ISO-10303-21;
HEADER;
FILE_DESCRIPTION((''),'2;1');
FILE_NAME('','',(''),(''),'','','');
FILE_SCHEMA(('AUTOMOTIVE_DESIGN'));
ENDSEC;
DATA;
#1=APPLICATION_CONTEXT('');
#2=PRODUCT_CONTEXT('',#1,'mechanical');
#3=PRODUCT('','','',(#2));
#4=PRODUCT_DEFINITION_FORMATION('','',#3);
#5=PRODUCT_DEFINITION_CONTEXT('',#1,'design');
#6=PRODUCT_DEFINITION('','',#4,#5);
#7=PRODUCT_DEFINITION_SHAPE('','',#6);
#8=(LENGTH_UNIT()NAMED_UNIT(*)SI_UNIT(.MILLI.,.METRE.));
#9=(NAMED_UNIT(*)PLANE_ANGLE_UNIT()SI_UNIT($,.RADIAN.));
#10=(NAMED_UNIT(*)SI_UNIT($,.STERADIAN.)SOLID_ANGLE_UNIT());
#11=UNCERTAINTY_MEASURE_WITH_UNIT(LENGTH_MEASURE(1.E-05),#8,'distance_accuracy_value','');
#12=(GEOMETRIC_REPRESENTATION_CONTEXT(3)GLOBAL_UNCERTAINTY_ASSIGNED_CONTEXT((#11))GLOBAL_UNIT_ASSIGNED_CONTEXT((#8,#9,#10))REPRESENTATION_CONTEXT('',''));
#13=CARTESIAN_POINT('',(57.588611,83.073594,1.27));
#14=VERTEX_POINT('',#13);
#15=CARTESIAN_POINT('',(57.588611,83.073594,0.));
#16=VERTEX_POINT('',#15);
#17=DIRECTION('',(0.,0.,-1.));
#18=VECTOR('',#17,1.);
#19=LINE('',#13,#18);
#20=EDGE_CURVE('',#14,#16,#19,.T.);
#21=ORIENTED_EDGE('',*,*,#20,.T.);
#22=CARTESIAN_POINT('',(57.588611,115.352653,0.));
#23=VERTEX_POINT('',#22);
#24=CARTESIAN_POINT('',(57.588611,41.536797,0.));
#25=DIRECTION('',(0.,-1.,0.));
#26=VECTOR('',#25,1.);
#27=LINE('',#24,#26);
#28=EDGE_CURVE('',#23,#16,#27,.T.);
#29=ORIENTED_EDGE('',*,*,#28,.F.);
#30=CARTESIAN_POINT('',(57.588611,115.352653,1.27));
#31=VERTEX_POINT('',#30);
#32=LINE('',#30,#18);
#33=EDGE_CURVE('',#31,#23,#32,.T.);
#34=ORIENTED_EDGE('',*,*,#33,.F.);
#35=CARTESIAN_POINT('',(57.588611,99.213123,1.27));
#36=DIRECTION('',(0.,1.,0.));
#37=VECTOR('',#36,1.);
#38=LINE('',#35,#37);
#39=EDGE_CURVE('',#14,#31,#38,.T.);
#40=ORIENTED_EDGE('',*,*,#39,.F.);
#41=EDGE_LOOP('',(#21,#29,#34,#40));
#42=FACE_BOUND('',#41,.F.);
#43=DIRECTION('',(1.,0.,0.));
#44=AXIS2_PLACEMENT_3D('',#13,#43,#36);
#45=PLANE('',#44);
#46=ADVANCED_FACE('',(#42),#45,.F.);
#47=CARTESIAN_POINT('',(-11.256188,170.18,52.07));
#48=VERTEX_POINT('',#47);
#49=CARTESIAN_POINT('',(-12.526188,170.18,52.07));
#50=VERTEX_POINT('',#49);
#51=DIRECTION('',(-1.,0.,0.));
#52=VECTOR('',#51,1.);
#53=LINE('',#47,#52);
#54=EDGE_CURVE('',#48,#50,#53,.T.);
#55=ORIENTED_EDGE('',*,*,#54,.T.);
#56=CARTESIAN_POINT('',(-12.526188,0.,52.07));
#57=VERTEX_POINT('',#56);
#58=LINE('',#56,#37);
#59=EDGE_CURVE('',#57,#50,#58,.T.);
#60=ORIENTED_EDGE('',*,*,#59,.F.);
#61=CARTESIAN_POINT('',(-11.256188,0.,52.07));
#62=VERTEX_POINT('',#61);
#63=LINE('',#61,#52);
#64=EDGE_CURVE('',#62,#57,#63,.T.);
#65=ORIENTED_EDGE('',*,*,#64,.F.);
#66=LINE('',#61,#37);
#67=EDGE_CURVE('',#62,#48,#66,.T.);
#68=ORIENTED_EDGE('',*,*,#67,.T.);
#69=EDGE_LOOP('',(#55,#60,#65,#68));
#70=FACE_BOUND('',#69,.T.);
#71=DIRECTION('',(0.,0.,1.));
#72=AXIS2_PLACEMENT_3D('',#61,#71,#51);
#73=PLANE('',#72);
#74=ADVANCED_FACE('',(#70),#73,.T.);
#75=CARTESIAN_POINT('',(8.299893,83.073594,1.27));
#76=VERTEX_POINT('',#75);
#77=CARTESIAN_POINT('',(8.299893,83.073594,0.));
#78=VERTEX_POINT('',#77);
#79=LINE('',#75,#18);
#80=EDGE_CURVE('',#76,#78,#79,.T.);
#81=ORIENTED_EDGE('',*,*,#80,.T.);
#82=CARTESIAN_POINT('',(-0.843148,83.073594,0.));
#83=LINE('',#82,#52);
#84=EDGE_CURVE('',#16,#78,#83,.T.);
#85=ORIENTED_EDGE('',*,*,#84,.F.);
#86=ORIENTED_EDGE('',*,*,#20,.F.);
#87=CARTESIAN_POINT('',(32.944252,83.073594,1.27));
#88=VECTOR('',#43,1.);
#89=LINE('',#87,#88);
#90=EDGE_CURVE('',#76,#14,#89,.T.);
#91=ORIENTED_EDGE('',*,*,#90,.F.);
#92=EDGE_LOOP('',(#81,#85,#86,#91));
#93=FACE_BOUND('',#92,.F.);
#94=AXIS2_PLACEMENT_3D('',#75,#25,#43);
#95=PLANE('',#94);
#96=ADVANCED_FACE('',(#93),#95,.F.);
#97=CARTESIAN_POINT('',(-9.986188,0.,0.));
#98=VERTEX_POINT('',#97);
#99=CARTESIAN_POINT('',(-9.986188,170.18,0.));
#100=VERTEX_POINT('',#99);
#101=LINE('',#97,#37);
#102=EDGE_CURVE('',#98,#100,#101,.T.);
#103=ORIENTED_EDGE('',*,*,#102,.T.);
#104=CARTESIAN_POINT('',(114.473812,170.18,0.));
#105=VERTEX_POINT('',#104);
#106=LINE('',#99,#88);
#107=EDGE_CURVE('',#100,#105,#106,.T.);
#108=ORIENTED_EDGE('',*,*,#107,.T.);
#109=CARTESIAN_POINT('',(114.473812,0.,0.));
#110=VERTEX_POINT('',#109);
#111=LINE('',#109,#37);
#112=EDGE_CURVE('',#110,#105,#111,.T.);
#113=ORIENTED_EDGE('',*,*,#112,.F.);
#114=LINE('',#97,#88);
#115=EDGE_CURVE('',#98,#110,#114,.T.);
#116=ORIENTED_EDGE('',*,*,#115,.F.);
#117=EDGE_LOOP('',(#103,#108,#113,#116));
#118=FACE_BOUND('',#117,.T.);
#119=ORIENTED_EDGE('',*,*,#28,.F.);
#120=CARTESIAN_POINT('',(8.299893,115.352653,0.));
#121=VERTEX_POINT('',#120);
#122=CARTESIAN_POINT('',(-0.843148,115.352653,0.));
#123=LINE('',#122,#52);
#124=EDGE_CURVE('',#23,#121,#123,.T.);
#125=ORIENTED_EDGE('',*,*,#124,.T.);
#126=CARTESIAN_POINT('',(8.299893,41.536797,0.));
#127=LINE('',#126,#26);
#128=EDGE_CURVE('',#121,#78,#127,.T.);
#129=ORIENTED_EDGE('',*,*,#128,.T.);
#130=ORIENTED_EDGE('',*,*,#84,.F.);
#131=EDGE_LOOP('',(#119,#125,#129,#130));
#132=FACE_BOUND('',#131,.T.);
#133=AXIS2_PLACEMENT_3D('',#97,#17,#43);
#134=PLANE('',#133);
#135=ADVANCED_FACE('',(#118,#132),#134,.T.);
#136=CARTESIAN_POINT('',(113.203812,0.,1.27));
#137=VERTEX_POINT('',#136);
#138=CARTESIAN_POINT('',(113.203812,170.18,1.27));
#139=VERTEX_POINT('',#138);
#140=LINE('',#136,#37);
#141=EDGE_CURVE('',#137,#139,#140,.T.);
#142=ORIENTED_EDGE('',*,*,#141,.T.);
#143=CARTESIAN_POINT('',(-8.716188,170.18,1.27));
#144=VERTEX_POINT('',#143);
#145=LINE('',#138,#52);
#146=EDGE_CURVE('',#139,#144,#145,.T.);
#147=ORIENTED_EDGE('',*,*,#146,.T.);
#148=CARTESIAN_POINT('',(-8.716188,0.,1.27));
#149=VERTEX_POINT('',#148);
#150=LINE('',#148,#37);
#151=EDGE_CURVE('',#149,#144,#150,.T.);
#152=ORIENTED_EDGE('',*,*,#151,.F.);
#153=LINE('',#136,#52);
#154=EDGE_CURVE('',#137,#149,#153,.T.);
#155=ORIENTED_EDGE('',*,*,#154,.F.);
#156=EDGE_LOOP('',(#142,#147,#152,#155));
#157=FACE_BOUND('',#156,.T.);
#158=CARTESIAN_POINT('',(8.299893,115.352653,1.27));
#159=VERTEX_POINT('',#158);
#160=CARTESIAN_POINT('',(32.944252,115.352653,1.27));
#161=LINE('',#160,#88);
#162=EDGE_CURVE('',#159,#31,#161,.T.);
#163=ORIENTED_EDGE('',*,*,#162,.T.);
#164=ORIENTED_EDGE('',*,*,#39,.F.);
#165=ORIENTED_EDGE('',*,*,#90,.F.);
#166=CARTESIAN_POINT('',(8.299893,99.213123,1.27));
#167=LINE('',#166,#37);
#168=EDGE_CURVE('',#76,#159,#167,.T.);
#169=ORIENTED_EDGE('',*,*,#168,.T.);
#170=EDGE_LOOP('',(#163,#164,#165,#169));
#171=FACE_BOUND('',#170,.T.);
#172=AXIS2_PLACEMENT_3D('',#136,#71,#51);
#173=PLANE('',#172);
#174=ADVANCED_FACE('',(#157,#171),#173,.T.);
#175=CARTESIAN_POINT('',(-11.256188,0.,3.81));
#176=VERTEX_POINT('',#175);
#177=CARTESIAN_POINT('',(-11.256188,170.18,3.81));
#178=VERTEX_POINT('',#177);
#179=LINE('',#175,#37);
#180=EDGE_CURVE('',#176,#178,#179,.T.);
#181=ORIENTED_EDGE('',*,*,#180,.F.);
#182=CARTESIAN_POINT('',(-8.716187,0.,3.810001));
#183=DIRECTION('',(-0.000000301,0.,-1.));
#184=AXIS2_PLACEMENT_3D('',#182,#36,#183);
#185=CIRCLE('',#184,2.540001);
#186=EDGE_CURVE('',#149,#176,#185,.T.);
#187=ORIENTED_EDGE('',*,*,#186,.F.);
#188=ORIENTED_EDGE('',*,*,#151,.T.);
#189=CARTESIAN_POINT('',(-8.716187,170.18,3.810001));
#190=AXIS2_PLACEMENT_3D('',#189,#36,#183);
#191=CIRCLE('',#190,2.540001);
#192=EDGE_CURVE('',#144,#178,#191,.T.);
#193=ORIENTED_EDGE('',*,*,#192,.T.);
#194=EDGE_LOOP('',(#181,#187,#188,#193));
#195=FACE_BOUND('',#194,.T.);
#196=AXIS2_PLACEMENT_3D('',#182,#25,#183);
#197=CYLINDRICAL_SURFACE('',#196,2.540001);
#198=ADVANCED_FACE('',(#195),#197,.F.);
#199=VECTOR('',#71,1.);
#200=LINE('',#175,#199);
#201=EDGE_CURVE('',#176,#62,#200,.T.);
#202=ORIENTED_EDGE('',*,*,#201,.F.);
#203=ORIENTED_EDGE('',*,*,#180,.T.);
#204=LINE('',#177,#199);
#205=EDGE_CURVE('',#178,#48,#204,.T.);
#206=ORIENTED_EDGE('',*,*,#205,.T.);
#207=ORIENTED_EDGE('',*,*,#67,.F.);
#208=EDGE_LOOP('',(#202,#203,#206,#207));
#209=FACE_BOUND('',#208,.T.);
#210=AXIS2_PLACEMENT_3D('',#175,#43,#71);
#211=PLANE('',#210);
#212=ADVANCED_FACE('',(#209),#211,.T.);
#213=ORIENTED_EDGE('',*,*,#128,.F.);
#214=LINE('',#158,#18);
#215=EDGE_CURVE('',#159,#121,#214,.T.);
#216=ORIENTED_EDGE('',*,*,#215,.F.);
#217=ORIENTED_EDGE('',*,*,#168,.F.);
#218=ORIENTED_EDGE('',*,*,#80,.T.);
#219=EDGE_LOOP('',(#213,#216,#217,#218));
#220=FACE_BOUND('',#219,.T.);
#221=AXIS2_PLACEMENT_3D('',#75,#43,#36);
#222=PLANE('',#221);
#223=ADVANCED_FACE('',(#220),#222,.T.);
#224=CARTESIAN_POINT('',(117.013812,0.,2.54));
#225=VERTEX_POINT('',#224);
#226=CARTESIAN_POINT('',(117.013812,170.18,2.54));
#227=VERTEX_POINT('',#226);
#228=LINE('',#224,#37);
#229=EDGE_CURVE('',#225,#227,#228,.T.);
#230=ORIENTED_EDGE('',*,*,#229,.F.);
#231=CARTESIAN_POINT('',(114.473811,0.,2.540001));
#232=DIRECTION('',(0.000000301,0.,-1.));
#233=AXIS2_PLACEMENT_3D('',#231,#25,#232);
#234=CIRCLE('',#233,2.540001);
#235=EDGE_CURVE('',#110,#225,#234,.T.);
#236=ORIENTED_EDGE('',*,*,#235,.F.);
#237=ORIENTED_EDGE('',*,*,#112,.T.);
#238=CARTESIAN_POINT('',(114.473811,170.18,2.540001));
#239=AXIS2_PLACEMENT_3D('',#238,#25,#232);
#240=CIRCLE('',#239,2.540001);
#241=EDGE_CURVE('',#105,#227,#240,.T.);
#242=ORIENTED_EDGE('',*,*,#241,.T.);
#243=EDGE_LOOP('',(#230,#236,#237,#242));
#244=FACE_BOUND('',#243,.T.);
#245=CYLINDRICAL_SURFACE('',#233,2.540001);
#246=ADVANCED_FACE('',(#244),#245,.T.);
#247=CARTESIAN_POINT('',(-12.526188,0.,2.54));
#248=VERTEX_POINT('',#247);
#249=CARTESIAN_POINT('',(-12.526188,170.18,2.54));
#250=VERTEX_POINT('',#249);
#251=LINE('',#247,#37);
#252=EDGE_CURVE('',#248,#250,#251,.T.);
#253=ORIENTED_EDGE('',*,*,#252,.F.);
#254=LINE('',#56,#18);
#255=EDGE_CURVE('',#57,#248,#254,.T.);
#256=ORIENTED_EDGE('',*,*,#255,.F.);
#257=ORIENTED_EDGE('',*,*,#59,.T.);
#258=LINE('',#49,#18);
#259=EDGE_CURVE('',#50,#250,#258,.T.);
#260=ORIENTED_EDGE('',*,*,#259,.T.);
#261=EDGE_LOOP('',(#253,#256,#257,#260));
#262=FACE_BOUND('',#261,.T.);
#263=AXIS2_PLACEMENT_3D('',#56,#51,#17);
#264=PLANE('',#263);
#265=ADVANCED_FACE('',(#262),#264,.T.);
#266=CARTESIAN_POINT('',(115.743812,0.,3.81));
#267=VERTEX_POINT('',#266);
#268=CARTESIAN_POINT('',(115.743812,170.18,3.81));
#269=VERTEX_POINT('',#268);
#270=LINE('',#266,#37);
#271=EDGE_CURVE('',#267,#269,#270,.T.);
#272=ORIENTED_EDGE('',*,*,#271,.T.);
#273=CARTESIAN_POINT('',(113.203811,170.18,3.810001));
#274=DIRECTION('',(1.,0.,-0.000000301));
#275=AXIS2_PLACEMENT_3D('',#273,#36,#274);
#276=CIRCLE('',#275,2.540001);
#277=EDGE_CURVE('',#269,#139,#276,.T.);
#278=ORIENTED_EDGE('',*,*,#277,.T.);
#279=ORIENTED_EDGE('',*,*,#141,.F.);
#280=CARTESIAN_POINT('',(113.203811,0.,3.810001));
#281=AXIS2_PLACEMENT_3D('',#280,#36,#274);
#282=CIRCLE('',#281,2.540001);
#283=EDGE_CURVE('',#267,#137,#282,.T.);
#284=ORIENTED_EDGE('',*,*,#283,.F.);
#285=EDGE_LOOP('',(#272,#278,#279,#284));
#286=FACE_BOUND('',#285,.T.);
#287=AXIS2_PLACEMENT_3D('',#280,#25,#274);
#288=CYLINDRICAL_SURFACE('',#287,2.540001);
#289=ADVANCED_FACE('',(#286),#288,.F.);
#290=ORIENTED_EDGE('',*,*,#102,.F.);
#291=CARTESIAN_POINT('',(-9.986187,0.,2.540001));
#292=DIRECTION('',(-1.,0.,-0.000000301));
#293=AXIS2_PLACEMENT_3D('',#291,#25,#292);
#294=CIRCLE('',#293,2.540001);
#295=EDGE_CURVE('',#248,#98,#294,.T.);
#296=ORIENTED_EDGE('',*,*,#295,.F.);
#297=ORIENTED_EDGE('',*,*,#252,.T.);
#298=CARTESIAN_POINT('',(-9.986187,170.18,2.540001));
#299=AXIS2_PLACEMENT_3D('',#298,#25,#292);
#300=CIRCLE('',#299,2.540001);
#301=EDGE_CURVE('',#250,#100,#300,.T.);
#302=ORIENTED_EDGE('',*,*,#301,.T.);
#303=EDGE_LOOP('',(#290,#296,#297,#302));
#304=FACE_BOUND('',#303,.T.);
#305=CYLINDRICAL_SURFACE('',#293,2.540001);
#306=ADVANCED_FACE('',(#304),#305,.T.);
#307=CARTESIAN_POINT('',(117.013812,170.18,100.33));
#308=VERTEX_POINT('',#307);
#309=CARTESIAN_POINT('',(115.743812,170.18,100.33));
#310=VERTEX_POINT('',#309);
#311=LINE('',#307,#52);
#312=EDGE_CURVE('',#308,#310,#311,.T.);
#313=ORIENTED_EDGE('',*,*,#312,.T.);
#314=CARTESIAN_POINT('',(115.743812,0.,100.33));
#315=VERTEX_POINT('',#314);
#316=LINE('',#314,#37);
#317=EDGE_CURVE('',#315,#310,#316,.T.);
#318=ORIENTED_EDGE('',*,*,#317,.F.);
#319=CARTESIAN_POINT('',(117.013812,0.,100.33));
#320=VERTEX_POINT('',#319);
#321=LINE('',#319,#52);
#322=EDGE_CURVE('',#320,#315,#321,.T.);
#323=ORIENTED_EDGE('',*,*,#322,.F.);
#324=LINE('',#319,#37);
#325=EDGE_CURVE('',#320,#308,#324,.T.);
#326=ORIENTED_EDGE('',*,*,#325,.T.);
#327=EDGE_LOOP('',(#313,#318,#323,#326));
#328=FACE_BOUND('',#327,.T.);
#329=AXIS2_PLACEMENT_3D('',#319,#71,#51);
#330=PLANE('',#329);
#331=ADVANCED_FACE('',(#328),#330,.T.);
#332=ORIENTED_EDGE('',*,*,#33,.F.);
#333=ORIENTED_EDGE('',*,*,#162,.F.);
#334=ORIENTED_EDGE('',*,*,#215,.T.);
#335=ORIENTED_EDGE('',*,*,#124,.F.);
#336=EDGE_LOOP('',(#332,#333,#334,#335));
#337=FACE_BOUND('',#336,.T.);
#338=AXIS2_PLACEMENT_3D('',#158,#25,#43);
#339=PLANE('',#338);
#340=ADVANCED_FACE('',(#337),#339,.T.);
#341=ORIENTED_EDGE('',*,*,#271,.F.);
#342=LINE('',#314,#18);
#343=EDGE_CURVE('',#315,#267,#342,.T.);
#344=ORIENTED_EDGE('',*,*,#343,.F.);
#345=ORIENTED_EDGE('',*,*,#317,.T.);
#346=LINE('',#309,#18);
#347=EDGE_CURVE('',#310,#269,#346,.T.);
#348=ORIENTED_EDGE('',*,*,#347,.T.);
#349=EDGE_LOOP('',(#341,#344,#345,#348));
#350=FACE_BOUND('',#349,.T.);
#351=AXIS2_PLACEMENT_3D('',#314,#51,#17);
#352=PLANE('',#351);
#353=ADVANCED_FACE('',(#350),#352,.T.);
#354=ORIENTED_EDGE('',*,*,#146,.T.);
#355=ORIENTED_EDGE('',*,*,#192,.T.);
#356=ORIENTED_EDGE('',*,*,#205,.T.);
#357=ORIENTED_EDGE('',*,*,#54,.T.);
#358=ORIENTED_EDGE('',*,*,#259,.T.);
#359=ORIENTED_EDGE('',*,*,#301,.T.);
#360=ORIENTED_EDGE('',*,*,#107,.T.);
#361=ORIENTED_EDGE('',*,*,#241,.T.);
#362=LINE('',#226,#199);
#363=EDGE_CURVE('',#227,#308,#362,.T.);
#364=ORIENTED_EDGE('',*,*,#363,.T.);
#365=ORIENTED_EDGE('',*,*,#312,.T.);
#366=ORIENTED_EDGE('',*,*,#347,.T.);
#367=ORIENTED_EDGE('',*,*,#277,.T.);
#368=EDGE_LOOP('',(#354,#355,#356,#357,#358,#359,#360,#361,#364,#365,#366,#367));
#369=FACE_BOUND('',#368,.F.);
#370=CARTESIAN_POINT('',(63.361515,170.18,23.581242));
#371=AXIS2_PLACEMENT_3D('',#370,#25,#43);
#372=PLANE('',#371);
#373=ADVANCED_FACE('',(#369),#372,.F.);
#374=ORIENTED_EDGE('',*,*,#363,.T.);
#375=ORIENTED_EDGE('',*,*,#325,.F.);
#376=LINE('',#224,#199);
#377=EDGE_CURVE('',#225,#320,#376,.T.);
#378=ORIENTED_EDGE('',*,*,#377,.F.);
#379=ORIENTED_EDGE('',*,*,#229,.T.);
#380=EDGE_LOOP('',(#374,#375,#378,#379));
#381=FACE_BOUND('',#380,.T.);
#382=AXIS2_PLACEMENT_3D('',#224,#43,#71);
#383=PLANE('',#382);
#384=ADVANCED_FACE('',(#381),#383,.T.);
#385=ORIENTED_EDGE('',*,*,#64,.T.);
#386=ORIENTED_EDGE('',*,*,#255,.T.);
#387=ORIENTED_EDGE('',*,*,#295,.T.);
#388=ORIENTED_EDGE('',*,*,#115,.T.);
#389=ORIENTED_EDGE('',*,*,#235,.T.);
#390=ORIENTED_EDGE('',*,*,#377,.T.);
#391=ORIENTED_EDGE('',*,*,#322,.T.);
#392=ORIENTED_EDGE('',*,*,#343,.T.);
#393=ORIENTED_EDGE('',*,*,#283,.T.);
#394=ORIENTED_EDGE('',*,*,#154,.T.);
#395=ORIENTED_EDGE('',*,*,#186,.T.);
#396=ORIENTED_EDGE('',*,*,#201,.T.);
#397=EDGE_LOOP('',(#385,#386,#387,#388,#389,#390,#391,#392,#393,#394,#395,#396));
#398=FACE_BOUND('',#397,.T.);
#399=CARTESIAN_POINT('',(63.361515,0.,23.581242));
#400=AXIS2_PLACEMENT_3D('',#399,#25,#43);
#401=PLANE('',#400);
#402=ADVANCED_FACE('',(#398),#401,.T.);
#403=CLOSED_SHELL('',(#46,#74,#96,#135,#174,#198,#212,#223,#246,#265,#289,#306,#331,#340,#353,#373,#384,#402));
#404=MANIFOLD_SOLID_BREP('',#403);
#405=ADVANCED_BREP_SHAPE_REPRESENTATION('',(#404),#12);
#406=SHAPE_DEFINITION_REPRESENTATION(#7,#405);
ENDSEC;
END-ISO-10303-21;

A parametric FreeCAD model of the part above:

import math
import FreeCAD as App
import Part
import Sketcher
from FreeCAD import Vector
Q = App.Units.Quantity

doc = App.newDocument("Part")
body = doc.addObject("PartDesign::Body", "Body")

sketch1 = body.newObject("Sketcher::SketchObject", "Sketch")
sketch1.AttachmentSupport = (doc.getObject("XZ_Plane"), [""])
sketch1.MapMode = "FlatFace"
sketch1.addGeometry(Part.LineSegment(Vector(-10, 0, 0), Vector(114.5, 0, 0)), False)
sketch1.addGeometry(Part.ArcOfCircle(Part.Circle(Vector(114.5, 2.5, 0), Vector(0, 0, 1), 2.5), math.radians(-90), math.radians(0)), False)
sketch1.addGeometry(Part.LineSegment(Vector(117, 2.5, 0), Vector(117, 100.3, 0)), False)
sketch1.addGeometry(Part.LineSegment(Vector(117, 100.3, 0), Vector(115.7, 100.3, 0)), False)
sketch1.addGeometry(Part.LineSegment(Vector(115.7, 100.3, 0), Vector(115.7, 3.8, 0)), False)
sketch1.addGeometry(Part.ArcOfCircle(Part.Circle(Vector(113.2, 3.8, 0), Vector(0, 0, 1), 2.5), math.radians(-90), math.radians(0)), False)
sketch1.addGeometry(Part.LineSegment(Vector(113.2, 1.3, 0), Vector(-8.7, 1.3, 0)), False)
sketch1.addGeometry(Part.ArcOfCircle(Part.Circle(Vector(-8.7, 3.8, 0), Vector(0, 0, 1), 2.5), math.radians(-180), math.radians(-90)), False)
sketch1.addGeometry(Part.LineSegment(Vector(-11.3, 3.8, 0), Vector(-11.3, 52.1, 0)), False)
sketch1.addGeometry(Part.LineSegment(Vector(-11.3, 52.1, 0), Vector(-12.5, 52.1, 0)), False)
sketch1.addGeometry(Part.LineSegment(Vector(-12.5, 52.1, 0), Vector(-12.5, 2.5, 0)), False)
sketch1.addGeometry(Part.ArcOfCircle(Part.Circle(Vector(-10, 2.5, 0), Vector(0, 0, 1), 2.5), math.radians(-180), math.radians(-90)), False)
sketch1.addConstraint(Sketcher.Constraint("Tangent", 0, 2, 1, 1))
sketch1.addConstraint(Sketcher.Constraint("Tangent", 1, 2, 2, 1))
sketch1.addConstraint(Sketcher.Constraint("Coincident", 2, 2, 3, 1))
sketch1.addConstraint(Sketcher.Constraint("Coincident", 3, 2, 4, 1))
sketch1.addConstraint(Sketcher.Constraint("Tangent", 4, 2, 5, 2))
sketch1.addConstraint(Sketcher.Constraint("Tangent", 5, 1, 6, 1))
sketch1.addConstraint(Sketcher.Constraint("Tangent", 6, 2, 7, 2))
sketch1.addConstraint(Sketcher.Constraint("Tangent", 7, 1, 8, 1))
sketch1.addConstraint(Sketcher.Constraint("Coincident", 8, 2, 9, 1))
sketch1.addConstraint(Sketcher.Constraint("Coincident", 9, 2, 10, 1))
sketch1.addConstraint(Sketcher.Constraint("Tangent", 10, 2, 11, 1))
sketch1.addConstraint(Sketcher.Constraint("Tangent", 11, 2, 0, 1))
sketch1.addConstraint(Sketcher.Constraint("Horizontal", 0))
sketch1.addConstraint(Sketcher.Constraint("Vertical", 2))
sketch1.addConstraint(Sketcher.Constraint("Horizontal", 3))
sketch1.addConstraint(Sketcher.Constraint("Vertical", 4))
sketch1.addConstraint(Sketcher.Constraint("Horizontal", 6))
sketch1.addConstraint(Sketcher.Constraint("Vertical", 8))
sketch1.addConstraint(Sketcher.Constraint("Horizontal", 9))
sketch1.addConstraint(Sketcher.Constraint("Vertical", 10))
sketch1.addConstraint(Sketcher.Constraint("Equal", 1, 5))
sketch1.addConstraint(Sketcher.Constraint("Equal", 5, 7))
sketch1.addConstraint(Sketcher.Constraint("Equal", 7, 11))
sketch1.addConstraint(Sketcher.Constraint("PointOnObject", 0, 2, -1))
sketch1.addConstraint(Sketcher.Constraint("Equal", 3, 9))
sketch1.addConstraint(Sketcher.Constraint("Radius", 1, Q("0.1 in")))
sketch1.addConstraint(Sketcher.Constraint("DistanceX", 0, 1, 0, 2, Q("4.9 in")))
sketch1.addConstraint(Sketcher.Constraint("DistanceX", 6, 2, 6, 1, Q("4.8 in")))
sketch1.addConstraint(Sketcher.Constraint("DistanceY", 4, 2, 4, 1, Q("3.8 in")))
sketch1.addConstraint(Sketcher.Constraint("DistanceY", 8, 1, 8, 2, Q("1.9 in")))
sketch1.addConstraint(Sketcher.Constraint("DistanceY", 2, 1, 2, 2, Q("3.85 in")))
sketch1.addConstraint(Sketcher.Constraint("DistanceX", -1, 1, 1, 3, Q("114.473811 mm")))
pad1 = body.newObject("PartDesign::Pad", "Pad")
pad1.Profile = sketch1
pad1.Length = Q("6.7 in")
pad1.Reversed = True

sketch2 = body.newObject("Sketcher::SketchObject", "Sketch001")
sketch2.AttachmentSupport = (doc.getObject("XY_Plane"), [""])
sketch2.MapMode = "FlatFace"
sketch2.AttachmentOffset = App.Placement(Vector(0, 0, 0.05 * 25.4), App.Rotation())
sketch2.addGeometry(Part.LineSegment(Vector(8, 115, 0), Vector(8, 83, 0)), False)
sketch2.addGeometry(Part.LineSegment(Vector(8, 83, 0), Vector(58, 83, 0)), False)
sketch2.addGeometry(Part.LineSegment(Vector(58, 83, 0), Vector(58, 115, 0)), False)
sketch2.addGeometry(Part.LineSegment(Vector(58, 115, 0), Vector(8, 115, 0)), False)
sketch2.addConstraint(Sketcher.Constraint("Coincident", 0, 2, 1, 1))
sketch2.addConstraint(Sketcher.Constraint("Coincident", 1, 2, 2, 1))
sketch2.addConstraint(Sketcher.Constraint("Coincident", 2, 2, 3, 1))
sketch2.addConstraint(Sketcher.Constraint("Coincident", 3, 2, 0, 1))
sketch2.addConstraint(Sketcher.Constraint("Vertical", 0))
sketch2.addConstraint(Sketcher.Constraint("Horizontal", 1))
sketch2.addConstraint(Sketcher.Constraint("Vertical", 2))
sketch2.addConstraint(Sketcher.Constraint("Horizontal", 3))
sketch2.addConstraint(Sketcher.Constraint("DistanceX", 1, 1, 1, 2, Q("49.288719 mm")))
sketch2.addConstraint(Sketcher.Constraint("DistanceY", 0, 2, 0, 1, Q("32.279059 mm")))
sketch2.addConstraint(Sketcher.Constraint("DistanceX", -1, 1, 1, 2, Q("57.588611 mm")))
sketch2.addConstraint(Sketcher.Constraint("DistanceY", -1, 1, 0, 2, Q("83.073594 mm")))
pocket1 = body.newObject("PartDesign::Pocket", "Pocket")
pocket1.Profile = sketch2
pocket1.Length = Q("1 in")

doc.recompute()
